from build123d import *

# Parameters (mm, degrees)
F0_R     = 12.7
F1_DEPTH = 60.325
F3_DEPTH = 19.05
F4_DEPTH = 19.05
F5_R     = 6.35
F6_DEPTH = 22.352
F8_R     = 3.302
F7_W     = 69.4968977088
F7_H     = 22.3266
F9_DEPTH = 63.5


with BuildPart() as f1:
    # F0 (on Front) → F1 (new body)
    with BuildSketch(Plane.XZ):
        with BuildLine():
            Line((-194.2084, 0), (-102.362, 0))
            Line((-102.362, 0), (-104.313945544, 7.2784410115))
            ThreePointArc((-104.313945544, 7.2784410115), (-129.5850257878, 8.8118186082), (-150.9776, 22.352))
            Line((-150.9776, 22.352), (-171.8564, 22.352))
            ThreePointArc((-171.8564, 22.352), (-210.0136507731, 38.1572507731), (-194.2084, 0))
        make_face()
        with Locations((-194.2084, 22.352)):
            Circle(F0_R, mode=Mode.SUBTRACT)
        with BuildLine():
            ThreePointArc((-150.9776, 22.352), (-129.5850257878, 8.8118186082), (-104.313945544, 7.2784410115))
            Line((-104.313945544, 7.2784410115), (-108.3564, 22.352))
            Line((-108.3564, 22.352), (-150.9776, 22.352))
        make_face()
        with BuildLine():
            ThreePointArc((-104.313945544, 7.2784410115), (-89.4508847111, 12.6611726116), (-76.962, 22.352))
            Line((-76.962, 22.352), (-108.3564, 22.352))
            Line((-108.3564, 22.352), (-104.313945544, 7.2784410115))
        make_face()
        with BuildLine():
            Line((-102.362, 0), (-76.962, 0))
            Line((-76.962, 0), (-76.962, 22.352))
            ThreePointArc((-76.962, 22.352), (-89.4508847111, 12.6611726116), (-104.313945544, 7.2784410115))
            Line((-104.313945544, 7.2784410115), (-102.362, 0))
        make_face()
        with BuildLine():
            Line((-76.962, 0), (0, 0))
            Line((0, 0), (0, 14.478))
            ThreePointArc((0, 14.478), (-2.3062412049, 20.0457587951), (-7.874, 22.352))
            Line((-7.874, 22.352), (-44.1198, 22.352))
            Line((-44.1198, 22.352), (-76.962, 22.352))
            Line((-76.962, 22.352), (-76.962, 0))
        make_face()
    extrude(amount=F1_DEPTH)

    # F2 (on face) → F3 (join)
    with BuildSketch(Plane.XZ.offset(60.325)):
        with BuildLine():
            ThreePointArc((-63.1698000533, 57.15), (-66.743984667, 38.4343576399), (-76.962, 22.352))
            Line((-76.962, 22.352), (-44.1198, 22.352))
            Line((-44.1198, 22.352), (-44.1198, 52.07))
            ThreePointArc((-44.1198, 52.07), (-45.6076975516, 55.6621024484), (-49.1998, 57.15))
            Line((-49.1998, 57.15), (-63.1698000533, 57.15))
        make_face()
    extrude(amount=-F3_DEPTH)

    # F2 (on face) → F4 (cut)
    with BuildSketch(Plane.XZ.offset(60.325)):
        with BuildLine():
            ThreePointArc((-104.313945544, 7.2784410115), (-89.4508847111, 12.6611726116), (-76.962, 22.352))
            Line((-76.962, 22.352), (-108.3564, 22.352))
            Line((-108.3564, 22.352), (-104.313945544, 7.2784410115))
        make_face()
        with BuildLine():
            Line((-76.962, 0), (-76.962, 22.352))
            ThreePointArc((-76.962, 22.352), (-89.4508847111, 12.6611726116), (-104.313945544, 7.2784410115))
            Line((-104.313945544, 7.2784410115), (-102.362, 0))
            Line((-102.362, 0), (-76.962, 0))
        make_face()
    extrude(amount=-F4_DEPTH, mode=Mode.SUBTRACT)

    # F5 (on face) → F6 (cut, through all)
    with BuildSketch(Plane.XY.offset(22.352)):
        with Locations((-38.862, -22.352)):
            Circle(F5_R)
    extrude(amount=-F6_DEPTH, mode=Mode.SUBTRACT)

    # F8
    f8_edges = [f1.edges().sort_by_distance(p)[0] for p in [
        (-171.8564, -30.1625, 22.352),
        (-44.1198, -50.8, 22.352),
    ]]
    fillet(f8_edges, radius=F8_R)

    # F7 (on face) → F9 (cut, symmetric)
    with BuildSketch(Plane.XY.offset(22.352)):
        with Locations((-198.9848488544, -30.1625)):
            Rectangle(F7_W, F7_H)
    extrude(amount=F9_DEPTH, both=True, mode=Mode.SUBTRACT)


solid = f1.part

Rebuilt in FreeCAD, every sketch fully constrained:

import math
import FreeCAD as App
import Part
import Sketcher
from FreeCAD import Vector
Q = App.Units.Quantity


def edges_at(feature, points):
    """Names of the edges that pass closest to the given points."""
    edges = feature.Shape.Edges
    near = lambda p: min(range(len(edges)), key=lambda i: edges[i].distToShape(Part.Vertex(*p))[0])
    return sorted({f"Edge{near(p) + 1}" for p in points})

doc = App.newDocument("Part")
body = doc.addObject("PartDesign::Body", "Body")

# Sketch on XZ plane
sketch1 = body.newObject("Sketcher::SketchObject", "Sketch")
sketch1.AttachmentSupport = (doc.getObject("XZ_Plane"), [""])
sketch1.MapMode = "FlatFace"
sketch1.addGeometry([
    Part.LineSegment(Vector(-194, 0, 0), Vector(0, 0, 0)),  # 0
    Part.LineSegment(Vector(0, 0, 0), Vector(0, 14, 0)),  # 1
    Part.ArcOfCircle(Part.Circle(Vector(-8, 14, 0), Vector(0, 0, 1), 8), math.radians(0), math.radians(90)),  # 2
    Part.LineSegment(Vector(-8, 22, 0), Vector(-172, 22, 0)),  # 3
    Part.ArcOfCircle(Part.Circle(Vector(-194, 22, 0), Vector(0, 0, 1), 22), math.radians(0), math.radians(270)),  # 4
    Part.Circle(Vector(-194, 22, 0), Vector(0, 0, 1), 13),  # 5
], False)
sketch1.addConstraint([
    Sketcher.Constraint("Coincident", 0, 2, 1, 1),
    Sketcher.Constraint("Tangent", 1, 2, 2, 1),
    Sketcher.Constraint("Tangent", 2, 2, 3, 1),
    Sketcher.Constraint("Coincident", 3, 2, 4, 1),
    Sketcher.Constraint("Tangent", 4, 2, 0, 1),
    Sketcher.Constraint("Horizontal", 0),
    Sketcher.Constraint("Vertical", 1),
    Sketcher.Constraint("Horizontal", 3),
    Sketcher.Constraint("Coincident", 0, 2, -1, 1),
    Sketcher.Constraint("Coincident", 5, 3, 4, 3),
    Sketcher.Constraint("Horizontal", 5, 3, 2, 2),
    Sketcher.Constraint("Diameter", 5, Q("1 in")),
    Sketcher.Constraint("Radius", 2, Q("0.31 in")),
    Sketcher.Constraint("Radius", 4, Q("0.88 in")),
    Sketcher.Constraint("DistanceX", 0, 1, 0, 2, Q("7.646 in")),
])
pad1 = body.newObject("PartDesign::Pad", "Pad")
pad1.Profile = sketch1
pad1.Length = Q("2.375 in")

# Sketch on XZ plane
sketch2 = body.newObject("Sketcher::SketchObject", "Sketch001")
sketch2.AttachmentSupport = (doc.getObject("XZ_Plane"), [""])
sketch2.MapMode = "FlatFace"
sketch2.AttachmentOffset = App.Placement(Vector(0, 0, 2.375 * 25.4), App.Rotation())
sketch2.addGeometry([
    Part.ArcOfCircle(Part.Circle(Vector(-114, 57, 0), Vector(0, 0, 1), 51), math.radians(-43), math.radians(0)),  # 0
    Part.LineSegment(Vector(-77, 22, 0), Vector(-44, 22, 0)),  # 1
    Part.LineSegment(Vector(-44, 22, 0), Vector(-44, 52, 0)),  # 2
    Part.ArcOfCircle(Part.Circle(Vector(-49, 52, 0), Vector(0, 0, 1), 5), math.radians(0), math.radians(90)),  # 3
    Part.LineSegment(Vector(-49, 57, 0), Vector(-63, 57, 0)),  # 4
], False)
sketch2.addConstraint([
    Sketcher.Constraint("Coincident", 0, 1, 1, 1),
    Sketcher.Constraint("Coincident", 1, 2, 2, 1),
    Sketcher.Constraint("Tangent", 2, 2, 3, 1),
    Sketcher.Constraint("Tangent", 3, 2, 4, 1),
    Sketcher.Constraint("Coincident", 4, 2, 0, 2),
    Sketcher.Constraint("Horizontal", 1),
    Sketcher.Constraint("Vertical", 2),
    Sketcher.Constraint("Horizontal", 4),
    Sketcher.Constraint("Radius", 0, Q("2 in")),
    Sketcher.Constraint("Radius", 3, Q("0.2 in")),
    Sketcher.Constraint("DistanceX", 4, 2, 4, 1, Q("0.55 in")),
    Sketcher.Constraint("DistanceY", 2, 1, 2, 2, Q("1.17 in")),
    Sketcher.Constraint("DistanceX", 1, 1, 1, 2, Q("1.293 in")),
    Sketcher.Constraint("DistanceY", -1, 1, 3, 3, Q("2.05 in")),
    Sketcher.Constraint("DistanceX", 0, 1, -1, 1, Q("3.03 in")),
])
pad2 = body.newObject("PartDesign::Pad", "Pad001")
pad2.Profile = sketch2
pad2.Length = Q("0.75 in")
pad2.Reversed = True

# Sketch on XZ plane
sketch3 = body.newObject("Sketcher::SketchObject", "Sketch002")
sketch3.AttachmentSupport = (doc.getObject("XZ_Plane"), [""])
sketch3.MapMode = "FlatFace"
sketch3.AttachmentOffset = App.Placement(Vector(0, 0, 2.375 * 25.4), App.Rotation())
sketch3.addGeometry([
    Part.LineSegment(Vector(-77, 22, 0), Vector(-108, 22, 0)),  # 0
    Part.LineSegment(Vector(-108, 22, 0), Vector(-104, 7, 0)),  # 1
    Part.LineSegment(Vector(-104, 7, 0), Vector(-102, 0, 0)),  # 2
    Part.LineSegment(Vector(-102, 0, 0), Vector(-77, 0, 0)),  # 3
    Part.LineSegment(Vector(-77, 0, 0), Vector(-77, 22, 0)),  # 4
], False)
sketch3.addConstraint([
    Sketcher.Constraint("Coincident", 0, 2, 1, 1),
    Sketcher.Constraint("Coincident", 1, 2, 2, 1),
    Sketcher.Constraint("Coincident", 2, 2, 3, 1),
    Sketcher.Constraint("Coincident", 3, 2, 4, 1),
    Sketcher.Constraint("Coincident", 4, 2, 0, 1),
    Sketcher.Constraint("Horizontal", 0),
    Sketcher.Constraint("Horizontal", 3),
    Sketcher.Constraint("Vertical", 4),
    Sketcher.Constraint("PointOnObject", 2, 2, -1),
    Sketcher.Constraint("Parallel", 1, 2),
    Sketcher.Constraint("DistanceX", 3, 1, 3, 2, Q("1 in")),
    Sketcher.Constraint("DistanceY", 4, 1, 4, 2, Q("0.88 in")),
    Sketcher.Constraint("DistanceX", 0, 2, 0, 1, Q("1.236 in")),
    Sketcher.Constraint("DistanceX", 2, 2, -1, 1, Q("4.03 in")),
    Sketcher.Constraint("DistanceY", -1, 1, 1, 2, Q("7.278441 mm")),
])
pocket1 = body.newObject("PartDesign::Pocket", "Pocket")
pocket1.Profile = sketch3
pocket1.Length = Q("0.75 in")

# Sketch on XY plane
sketch4 = body.newObject("Sketcher::SketchObject", "Sketch003")
sketch4.AttachmentSupport = (doc.getObject("XY_Plane"), [""])
sketch4.MapMode = "FlatFace"
sketch4.AttachmentOffset = App.Placement(Vector(0, 0, 0.88 * 25.4), App.Rotation())
sketch4.addGeometry(Part.Circle(Vector(-39, -22, 0), Vector(0, 0, 1), 6), False)
sketch4.addConstraint([
    Sketcher.Constraint("Diameter", 0, Q("0.5 in")),
    Sketcher.Constraint("DistanceX", 0, 3, -1, 1, Q("1.53 in")),
    Sketcher.Constraint("DistanceY", 0, 3, -1, 1, Q("0.88 in")),
])
pocket2 = body.newObject("PartDesign::Pocket", "Pocket001")
pocket2.Profile = sketch4
pocket2.Type = "ThroughAll"
doc.recompute()

fillet = body.newObject("PartDesign::Fillet", "Fillet")
fillet.Base = (pocket2, edges_at(pocket2, [(-171.856, -30.163, 22.352), (-44.12, -50.8, 22.352)]))
fillet.Radius = Q("0.13 in")

# Sketch on XY plane
sketch5 = body.newObject("Sketcher::SketchObject", "Sketch004")
sketch5.AttachmentSupport = (doc.getObject("XY_Plane"), [""])
sketch5.MapMode = "FlatFace"
sketch5.AttachmentOffset = App.Placement(Vector(0, 0, 0.88 * 25.4), App.Rotation())
sketch5.addGeometry([
    Part.LineSegment(Vector(-234, -19, 0), Vector(-234, -41, 0)),
    Part.LineSegment(Vector(-234, -41, 0), Vector(-164, -41, 0)),
    Part.LineSegment(Vector(-164, -41, 0), Vector(-164, -19, 0)),
    Part.LineSegment(Vector(-164, -19, 0), Vector(-234, -19, 0)),
], False)
sketch5.addConstraint([
    Sketcher.Constraint("Coincident", 0, 2, 1, 1),
    Sketcher.Constraint("Coincident", 1, 2, 2, 1),
    Sketcher.Constraint("Coincident", 2, 2, 3, 1),
    Sketcher.Constraint("Coincident", 3, 2, 0, 1),
    Sketcher.Constraint("Vertical", 0),
    Sketcher.Constraint("Horizontal", 1),
    Sketcher.Constraint("Vertical", 2),
    Sketcher.Constraint("Horizontal", 3),
    Sketcher.Constraint("DistanceY", 0, 2, 0, 1, Q("0.879 in")),
    Sketcher.Constraint("DistanceY", 0, 2, -1, 1, Q("1.627 in")),
    Sketcher.Constraint("DistanceX", 1, 2, -1, 1, Q("6.466 in")),
    Sketcher.Constraint("DistanceX", 1, 1, 1, 2, Q("69.496898 mm")),
])
pocket3 = body.newObject("PartDesign::Pocket", "Pocket002")
pocket3.Profile = sketch5
pocket3.Length = Q("5 in")
pocket3.Midplane = True

doc.recompute()
